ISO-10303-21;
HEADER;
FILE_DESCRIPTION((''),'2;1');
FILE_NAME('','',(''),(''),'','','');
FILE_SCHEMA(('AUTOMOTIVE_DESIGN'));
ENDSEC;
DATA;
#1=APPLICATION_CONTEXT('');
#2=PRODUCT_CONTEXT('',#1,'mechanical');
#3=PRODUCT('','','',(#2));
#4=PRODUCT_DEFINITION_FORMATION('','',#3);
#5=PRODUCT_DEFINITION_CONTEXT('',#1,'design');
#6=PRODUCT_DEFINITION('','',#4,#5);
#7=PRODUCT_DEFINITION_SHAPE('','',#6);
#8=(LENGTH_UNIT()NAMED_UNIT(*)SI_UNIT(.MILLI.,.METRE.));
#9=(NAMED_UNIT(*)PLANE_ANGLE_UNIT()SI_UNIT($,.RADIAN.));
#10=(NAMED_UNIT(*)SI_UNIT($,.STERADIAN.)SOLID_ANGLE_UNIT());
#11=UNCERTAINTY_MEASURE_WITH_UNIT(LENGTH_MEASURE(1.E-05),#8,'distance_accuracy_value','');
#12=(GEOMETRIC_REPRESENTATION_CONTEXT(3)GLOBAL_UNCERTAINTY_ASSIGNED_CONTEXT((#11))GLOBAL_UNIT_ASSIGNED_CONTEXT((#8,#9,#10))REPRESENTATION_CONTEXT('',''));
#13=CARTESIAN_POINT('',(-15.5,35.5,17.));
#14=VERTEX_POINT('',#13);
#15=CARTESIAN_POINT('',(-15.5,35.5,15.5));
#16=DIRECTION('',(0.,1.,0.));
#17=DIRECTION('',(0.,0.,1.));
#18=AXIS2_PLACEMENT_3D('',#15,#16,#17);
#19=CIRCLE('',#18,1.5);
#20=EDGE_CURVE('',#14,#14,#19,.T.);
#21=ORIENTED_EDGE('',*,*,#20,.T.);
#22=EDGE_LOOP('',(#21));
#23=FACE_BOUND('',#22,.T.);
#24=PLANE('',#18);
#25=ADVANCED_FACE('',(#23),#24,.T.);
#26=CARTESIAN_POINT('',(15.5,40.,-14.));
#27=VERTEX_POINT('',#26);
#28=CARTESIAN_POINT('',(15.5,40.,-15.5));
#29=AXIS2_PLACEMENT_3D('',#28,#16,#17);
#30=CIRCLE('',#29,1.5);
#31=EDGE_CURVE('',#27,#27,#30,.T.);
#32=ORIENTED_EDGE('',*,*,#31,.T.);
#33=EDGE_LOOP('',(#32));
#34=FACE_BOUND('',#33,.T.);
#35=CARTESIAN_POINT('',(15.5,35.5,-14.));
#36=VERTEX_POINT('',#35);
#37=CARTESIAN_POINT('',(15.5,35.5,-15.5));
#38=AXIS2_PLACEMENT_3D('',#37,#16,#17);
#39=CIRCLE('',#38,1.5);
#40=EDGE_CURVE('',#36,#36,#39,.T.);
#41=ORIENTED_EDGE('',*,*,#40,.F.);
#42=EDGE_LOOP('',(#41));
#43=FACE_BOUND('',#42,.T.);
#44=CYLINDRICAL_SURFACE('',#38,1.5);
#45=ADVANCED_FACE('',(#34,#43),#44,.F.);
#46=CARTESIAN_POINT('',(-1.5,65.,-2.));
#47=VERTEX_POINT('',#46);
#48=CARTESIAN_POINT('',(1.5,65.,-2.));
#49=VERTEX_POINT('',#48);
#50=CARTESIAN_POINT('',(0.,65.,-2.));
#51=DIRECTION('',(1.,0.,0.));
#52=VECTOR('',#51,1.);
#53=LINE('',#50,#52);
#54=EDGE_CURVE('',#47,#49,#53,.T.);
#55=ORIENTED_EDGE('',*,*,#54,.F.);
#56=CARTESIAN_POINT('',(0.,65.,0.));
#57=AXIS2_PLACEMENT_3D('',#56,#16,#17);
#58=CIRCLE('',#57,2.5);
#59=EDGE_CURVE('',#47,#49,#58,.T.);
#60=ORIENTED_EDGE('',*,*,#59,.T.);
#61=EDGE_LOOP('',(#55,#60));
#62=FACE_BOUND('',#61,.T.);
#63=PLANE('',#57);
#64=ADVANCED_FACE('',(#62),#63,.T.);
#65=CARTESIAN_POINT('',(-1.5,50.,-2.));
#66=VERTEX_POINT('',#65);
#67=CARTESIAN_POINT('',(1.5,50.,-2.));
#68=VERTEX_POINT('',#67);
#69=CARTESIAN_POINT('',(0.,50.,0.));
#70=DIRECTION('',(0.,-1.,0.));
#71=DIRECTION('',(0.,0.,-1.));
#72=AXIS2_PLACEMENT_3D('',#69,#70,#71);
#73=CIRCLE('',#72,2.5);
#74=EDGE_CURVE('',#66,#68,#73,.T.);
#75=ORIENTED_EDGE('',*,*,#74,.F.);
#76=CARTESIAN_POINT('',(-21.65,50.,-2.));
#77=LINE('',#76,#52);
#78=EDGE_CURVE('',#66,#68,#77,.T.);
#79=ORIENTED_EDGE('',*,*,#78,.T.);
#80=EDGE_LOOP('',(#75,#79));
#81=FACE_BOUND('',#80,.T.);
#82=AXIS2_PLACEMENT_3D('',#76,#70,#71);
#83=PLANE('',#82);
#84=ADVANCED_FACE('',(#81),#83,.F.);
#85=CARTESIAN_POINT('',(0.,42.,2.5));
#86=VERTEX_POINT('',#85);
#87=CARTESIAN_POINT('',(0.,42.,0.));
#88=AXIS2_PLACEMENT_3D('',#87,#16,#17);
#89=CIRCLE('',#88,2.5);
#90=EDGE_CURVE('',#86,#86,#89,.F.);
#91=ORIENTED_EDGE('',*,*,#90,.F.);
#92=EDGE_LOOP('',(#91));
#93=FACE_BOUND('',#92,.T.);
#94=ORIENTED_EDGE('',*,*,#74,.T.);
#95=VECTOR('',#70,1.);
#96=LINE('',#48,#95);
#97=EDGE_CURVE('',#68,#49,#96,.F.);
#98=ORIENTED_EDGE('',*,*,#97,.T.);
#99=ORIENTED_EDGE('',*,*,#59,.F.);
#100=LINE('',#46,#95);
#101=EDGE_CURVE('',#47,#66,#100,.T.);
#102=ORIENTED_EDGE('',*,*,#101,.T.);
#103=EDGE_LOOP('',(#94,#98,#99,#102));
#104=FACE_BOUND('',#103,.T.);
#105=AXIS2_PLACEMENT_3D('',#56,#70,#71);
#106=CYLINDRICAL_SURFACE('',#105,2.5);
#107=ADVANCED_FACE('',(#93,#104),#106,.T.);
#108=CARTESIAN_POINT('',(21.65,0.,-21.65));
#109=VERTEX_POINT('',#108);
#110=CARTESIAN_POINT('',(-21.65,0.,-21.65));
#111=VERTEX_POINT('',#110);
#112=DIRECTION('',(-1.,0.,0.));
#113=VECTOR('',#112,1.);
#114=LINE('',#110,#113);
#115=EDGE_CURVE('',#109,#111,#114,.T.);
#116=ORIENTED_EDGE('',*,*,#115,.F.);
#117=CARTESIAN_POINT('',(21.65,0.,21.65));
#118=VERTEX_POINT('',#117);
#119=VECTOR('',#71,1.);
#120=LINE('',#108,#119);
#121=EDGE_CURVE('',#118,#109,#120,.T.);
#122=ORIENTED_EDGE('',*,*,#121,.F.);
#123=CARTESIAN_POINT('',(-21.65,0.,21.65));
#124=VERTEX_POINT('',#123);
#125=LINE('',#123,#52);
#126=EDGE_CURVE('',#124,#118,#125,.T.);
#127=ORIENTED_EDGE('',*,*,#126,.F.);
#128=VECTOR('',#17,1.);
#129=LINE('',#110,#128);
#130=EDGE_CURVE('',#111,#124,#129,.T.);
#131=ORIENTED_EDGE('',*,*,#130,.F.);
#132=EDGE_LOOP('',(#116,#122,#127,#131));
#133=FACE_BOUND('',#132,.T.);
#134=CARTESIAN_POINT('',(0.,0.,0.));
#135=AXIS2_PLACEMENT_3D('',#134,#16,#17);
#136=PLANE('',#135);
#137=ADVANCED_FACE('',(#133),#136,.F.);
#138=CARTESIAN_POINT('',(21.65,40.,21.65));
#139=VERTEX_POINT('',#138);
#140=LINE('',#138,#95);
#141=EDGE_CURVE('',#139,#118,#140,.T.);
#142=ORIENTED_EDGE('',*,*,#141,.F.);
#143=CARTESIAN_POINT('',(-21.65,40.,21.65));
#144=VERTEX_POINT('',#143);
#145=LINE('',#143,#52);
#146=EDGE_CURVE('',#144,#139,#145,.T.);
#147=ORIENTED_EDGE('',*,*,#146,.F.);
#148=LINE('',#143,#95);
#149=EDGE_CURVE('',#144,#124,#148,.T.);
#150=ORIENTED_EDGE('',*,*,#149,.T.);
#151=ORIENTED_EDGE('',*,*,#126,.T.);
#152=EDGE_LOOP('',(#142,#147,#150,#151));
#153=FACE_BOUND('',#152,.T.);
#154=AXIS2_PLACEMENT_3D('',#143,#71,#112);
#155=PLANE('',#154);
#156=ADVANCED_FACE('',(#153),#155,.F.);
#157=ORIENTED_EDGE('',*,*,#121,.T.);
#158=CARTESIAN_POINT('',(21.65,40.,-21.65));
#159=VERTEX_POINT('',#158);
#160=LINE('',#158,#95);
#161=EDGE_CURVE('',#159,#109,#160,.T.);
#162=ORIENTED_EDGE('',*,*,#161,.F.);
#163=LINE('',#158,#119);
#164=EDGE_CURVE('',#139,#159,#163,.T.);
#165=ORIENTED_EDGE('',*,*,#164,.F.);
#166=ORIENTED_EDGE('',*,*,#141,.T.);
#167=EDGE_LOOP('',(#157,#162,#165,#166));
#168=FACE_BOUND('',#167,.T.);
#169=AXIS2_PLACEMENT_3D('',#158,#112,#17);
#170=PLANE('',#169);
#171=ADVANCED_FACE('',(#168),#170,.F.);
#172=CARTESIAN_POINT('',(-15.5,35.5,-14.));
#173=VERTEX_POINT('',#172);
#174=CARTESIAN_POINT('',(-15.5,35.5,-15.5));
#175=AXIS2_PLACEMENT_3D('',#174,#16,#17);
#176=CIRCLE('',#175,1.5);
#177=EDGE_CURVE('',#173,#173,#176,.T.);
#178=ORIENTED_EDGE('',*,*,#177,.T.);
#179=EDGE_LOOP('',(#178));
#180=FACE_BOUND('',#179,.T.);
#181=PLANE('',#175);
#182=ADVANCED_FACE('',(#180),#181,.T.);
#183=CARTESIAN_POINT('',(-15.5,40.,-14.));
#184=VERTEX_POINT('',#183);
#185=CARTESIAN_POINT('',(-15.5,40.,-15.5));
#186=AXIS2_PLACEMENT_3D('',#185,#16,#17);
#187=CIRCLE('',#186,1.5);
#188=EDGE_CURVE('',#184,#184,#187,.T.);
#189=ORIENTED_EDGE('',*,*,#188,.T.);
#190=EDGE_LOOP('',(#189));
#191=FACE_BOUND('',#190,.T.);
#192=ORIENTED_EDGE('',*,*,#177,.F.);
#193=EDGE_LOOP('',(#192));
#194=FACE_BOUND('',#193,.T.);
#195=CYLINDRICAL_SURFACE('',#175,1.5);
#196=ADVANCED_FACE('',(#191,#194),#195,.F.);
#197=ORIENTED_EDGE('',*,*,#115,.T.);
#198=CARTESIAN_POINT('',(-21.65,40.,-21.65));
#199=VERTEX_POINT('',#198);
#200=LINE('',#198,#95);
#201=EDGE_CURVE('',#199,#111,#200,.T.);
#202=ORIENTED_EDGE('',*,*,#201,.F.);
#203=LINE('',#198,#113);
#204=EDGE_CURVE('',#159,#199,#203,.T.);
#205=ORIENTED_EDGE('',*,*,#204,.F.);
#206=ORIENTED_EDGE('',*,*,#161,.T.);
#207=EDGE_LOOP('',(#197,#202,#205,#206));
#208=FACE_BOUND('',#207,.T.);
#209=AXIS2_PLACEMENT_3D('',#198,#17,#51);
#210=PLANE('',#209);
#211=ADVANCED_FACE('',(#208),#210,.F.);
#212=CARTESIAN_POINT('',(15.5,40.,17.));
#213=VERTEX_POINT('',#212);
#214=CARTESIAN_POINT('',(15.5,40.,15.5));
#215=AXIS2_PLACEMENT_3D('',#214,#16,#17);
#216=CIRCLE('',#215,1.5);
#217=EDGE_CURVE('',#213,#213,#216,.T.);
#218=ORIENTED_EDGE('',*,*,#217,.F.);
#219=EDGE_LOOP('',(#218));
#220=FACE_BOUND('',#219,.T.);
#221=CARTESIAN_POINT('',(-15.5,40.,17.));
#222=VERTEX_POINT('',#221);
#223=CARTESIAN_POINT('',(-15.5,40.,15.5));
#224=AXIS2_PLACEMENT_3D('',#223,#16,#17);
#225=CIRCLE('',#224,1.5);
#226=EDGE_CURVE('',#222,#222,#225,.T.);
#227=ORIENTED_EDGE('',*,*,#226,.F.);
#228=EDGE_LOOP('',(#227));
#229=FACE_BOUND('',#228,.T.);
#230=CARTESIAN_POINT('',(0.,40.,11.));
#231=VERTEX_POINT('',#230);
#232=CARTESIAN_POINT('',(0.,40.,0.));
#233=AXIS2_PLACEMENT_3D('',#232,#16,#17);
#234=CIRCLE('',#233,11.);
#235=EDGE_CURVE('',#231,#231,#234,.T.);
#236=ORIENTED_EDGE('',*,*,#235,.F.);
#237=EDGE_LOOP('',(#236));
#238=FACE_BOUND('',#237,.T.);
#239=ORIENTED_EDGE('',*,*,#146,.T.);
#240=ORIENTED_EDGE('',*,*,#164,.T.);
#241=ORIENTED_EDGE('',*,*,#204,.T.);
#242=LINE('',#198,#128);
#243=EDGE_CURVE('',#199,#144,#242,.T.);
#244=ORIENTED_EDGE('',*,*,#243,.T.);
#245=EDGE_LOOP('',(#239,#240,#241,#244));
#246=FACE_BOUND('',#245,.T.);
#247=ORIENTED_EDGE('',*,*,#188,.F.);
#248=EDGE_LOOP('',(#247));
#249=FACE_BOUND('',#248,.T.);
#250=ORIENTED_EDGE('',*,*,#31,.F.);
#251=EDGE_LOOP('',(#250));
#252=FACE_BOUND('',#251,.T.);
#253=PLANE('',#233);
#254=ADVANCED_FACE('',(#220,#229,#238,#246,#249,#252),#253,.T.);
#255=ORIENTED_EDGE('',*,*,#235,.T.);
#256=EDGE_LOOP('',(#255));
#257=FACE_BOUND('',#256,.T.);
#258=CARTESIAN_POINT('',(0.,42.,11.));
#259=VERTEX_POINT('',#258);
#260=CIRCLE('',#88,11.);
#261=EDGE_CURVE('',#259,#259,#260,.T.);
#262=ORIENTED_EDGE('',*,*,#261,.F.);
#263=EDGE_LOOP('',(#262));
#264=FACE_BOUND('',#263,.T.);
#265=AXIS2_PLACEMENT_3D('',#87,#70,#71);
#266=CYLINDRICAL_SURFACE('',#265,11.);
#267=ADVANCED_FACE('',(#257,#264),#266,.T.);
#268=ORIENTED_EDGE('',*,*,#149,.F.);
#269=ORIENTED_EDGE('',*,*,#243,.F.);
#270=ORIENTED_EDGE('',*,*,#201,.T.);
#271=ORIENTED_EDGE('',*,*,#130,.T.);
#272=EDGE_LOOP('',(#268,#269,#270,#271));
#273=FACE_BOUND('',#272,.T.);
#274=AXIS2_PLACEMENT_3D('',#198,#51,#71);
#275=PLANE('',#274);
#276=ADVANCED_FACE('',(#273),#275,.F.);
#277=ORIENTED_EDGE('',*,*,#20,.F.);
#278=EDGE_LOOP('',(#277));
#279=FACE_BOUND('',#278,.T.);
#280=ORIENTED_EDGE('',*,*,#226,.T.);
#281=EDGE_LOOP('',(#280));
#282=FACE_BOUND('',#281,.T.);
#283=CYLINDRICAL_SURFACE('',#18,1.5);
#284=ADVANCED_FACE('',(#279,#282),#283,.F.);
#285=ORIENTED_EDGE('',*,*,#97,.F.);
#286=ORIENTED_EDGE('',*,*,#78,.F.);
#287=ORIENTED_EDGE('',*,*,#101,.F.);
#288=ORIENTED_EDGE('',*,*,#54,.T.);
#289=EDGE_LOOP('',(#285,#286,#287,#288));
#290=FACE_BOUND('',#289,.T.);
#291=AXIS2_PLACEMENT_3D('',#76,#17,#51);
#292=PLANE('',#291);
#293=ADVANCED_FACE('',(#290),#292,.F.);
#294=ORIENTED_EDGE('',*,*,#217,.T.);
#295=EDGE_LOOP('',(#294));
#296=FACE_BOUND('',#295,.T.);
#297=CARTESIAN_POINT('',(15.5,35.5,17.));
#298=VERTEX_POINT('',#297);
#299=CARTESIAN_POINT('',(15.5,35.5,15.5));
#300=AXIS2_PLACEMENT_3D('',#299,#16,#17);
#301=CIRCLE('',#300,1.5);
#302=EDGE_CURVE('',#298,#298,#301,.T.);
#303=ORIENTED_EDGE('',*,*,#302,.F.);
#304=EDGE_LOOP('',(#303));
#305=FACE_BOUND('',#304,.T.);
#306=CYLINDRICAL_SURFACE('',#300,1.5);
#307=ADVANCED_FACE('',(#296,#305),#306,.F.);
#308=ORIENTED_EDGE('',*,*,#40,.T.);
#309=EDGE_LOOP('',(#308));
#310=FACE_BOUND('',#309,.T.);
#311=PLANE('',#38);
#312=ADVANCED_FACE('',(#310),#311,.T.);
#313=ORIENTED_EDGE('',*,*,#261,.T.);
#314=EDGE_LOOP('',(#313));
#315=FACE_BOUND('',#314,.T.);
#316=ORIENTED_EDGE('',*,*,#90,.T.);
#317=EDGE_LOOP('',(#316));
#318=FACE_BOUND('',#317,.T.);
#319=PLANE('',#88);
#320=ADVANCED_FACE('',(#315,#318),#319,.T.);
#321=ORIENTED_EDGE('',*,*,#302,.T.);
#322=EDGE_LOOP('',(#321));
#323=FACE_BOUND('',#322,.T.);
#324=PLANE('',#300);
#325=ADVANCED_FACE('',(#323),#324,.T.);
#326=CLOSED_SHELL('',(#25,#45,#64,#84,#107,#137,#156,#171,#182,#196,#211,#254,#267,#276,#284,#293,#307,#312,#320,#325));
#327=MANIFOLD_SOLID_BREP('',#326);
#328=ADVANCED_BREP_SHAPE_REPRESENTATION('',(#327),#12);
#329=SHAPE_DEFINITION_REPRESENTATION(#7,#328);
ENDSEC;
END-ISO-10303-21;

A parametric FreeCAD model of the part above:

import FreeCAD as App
import Part
import Sketcher
from FreeCAD import Vector
Q = App.Units.Quantity

doc = App.newDocument("Part")
body = doc.addObject("PartDesign::Body", "Body")

# Sketch on XZ plane
sketch1 = doc.addObject("Sketcher::SketchObject", "Sketch")
body.addObject(sketch1)
sketch1.AttachmentSupport = (doc.XZ_Plane, [""])
sketch1.MapMode = "FlatFace"
sketch1.addGeometry(Part.LineSegment(Vector(-22, -22, 0), Vector(-22, 22, 0)), False)
sketch1.addGeometry(Part.LineSegment(Vector(-22, 22, 0), Vector(22, 22, 0)), False)
sketch1.addGeometry(Part.LineSegment(Vector(22, 22, 0), Vector(22, -22, 0)), False)
sketch1.addGeometry(Part.LineSegment(Vector(22, -22, 0), Vector(-22, -22, 0)), False)
sketch1.addConstraint(Sketcher.Constraint("Coincident", 0, 2, 1, 1))
sketch1.addConstraint(Sketcher.Constraint("Coincident", 1, 2, 2, 1))
sketch1.addConstraint(Sketcher.Constraint("Coincident", 2, 2, 3, 1))
sketch1.addConstraint(Sketcher.Constraint("Coincident", 3, 2, 0, 1))
sketch1.addConstraint(Sketcher.Constraint("Vertical", 0))
sketch1.addConstraint(Sketcher.Constraint("Horizontal", 1))
sketch1.addConstraint(Sketcher.Constraint("Vertical", 2))
sketch1.addConstraint(Sketcher.Constraint("Horizontal", 3))
sketch1.addConstraint(Sketcher.Constraint("Symmetric", 0, 2, 2, 2, -1, 1))
sketch1.addConstraint(Sketcher.Constraint("Equal", 3, 0))
sketch1.addConstraint(Sketcher.Constraint("DistanceX", 1, 1, 1, 2, Q("43.3 mm")))
pad1 = doc.addObject("PartDesign::Pad", "Pad")
body.addObject(pad1)
pad1.Profile = sketch1
pad1.Length = 40
pad1.Reversed = True

# Sketch on XZ plane
sketch2 = doc.addObject("Sketcher::SketchObject", "Sketch001")
body.addObject(sketch2)
sketch2.AttachmentSupport = (doc.XZ_Plane, [""])
sketch2.MapMode = "FlatFace"
sketch2.AttachmentOffset = App.Placement(Vector(0, 0, -40), App.Rotation())
sketch2.addGeometry(Part.Circle(Vector(0, 0, 0), Vector(0, 0, 1), 11), False)
sketch2.addConstraint(Sketcher.Constraint("Coincident", 0, 3, -1, 1))
sketch2.addConstraint(Sketcher.Constraint("Diameter", 0, Q("22 mm")))
pad2 = doc.addObject("PartDesign::Pad", "Pad001")
body.addObject(pad2)
pad2.Profile = sketch2
pad2.Length = 2
pad2.Reversed = True

# Sketch on XZ plane
sketch3 = doc.addObject("Sketcher::SketchObject", "Sketch002")
body.addObject(sketch3)
sketch3.AttachmentSupport = (doc.XZ_Plane, [""])
sketch3.MapMode = "FlatFace"
sketch3.AttachmentOffset = App.Placement(Vector(0, 0, -40), App.Rotation())
sketch3.addGeometry(Part.Circle(Vector(0, 0, 0), Vector(0, 0, 1), 2.5), False)
sketch3.addConstraint(Sketcher.Constraint("Coincident", 0, 3, -1, 1))
sketch3.addConstraint(Sketcher.Constraint("Diameter", 0, Q("5 mm")))
pad3 = doc.addObject("PartDesign::Pad", "Pad002")
body.addObject(pad3)
pad3.Profile = sketch3
pad3.Length = 25
pad3.Reversed = True

# Sketch on YZ plane
sketch4 = doc.addObject("Sketcher::SketchObject", "Sketch003")
body.addObject(sketch4)
sketch4.AttachmentSupport = (doc.YZ_Plane, [""])
sketch4.MapMode = "FlatFace"
sketch4.addGeometry(Part.LineSegment(Vector(65, -2, 0), Vector(50, -2, 0)), False)
sketch4.addGeometry(Part.LineSegment(Vector(50, -2, 0), Vector(50, -2.5, 0)), False)
sketch4.addGeometry(Part.LineSegment(Vector(50, -2.5, 0), Vector(65, -2.5, 0)), False)
sketch4.addGeometry(Part.LineSegment(Vector(65, -2.5, 0), Vector(65, -2, 0)), False)
sketch4.addConstraint(Sketcher.Constraint("Coincident", 0, 2, 1, 1))
sketch4.addConstraint(Sketcher.Constraint("Coincident", 1, 2, 2, 1))
sketch4.addConstraint(Sketcher.Constraint("Coincident", 2, 2, 3, 1))
sketch4.addConstraint(Sketcher.Constraint("Coincident", 3, 2, 0, 1))
sketch4.addConstraint(Sketcher.Constraint("Horizontal", 0))
sketch4.addConstraint(Sketcher.Constraint("Vertical", 1))
sketch4.addConstraint(Sketcher.Constraint("Horizontal", 2))
sketch4.addConstraint(Sketcher.Constraint("Vertical", 3))
sketch4.addConstraint(Sketcher.Constraint("DistanceX", 0, 2, 0, 1, Q("15 mm")))
sketch4.addConstraint(Sketcher.Constraint("DistanceY", 1, 2, 1, 1, Q("0.5 mm")))
sketch4.addConstraint(Sketcher.Constraint("DistanceX", -1, 1, 0, 2, Q("50 mm")))
sketch4.addConstraint(Sketcher.Constraint("DistanceY", 0, 2, -1, 1, Q("2 mm")))
pocket1 = doc.addObject("PartDesign::Pocket", "Pocket")
body.addObject(pocket1)
pocket1.Profile = sketch4
pocket1.Type = "ThroughAll"
pocket1.Midplane = True

# Sketch on XZ plane
sketch5 = doc.addObject("Sketcher::SketchObject", "Sketch004")
body.addObject(sketch5)
sketch5.AttachmentSupport = (doc.XZ_Plane, [""])
sketch5.MapMode = "FlatFace"
sketch5.AttachmentOffset = App.Placement(Vector(0, 0, -40), App.Rotation())
sketch5.addGeometry(Part.Circle(Vector(15.5, -15.5, 0), Vector(0, 0, 1), 1.5), False)
sketch5.addGeometry(Part.Circle(Vector(15.5, 15.5, 0), Vector(0, 0, 1), 1.5), False)
sketch5.addGeometry(Part.Circle(Vector(-15.5, 15.5, 0), Vector(0, 0, 1), 1.5), False)
sketch5.addGeometry(Part.Circle(Vector(-15.5, -15.5, 0), Vector(0, 0, 1), 1.5), False)
sketch5.addConstraint(Sketcher.Constraint("Equal", 0, 1))
sketch5.addConstraint(Sketcher.Constraint("Equal", 1, 2))
sketch5.addConstraint(Sketcher.Constraint("Equal", 2, 3))
sketch5.addConstraint(Sketcher.Constraint("Symmetric", 0, 3, 2, 3, -1, 1))
sketch5.addConstraint(Sketcher.Constraint("Symmetric", 1, 3, 3, 3, -1, 1))
sketch5.addConstraint(Sketcher.Constraint("Symmetric", 1, 3, 2, 3, -2))
sketch5.addConstraint(Sketcher.Constraint("Diameter", 0, Q("3 mm")))
sketch5.addConstraint(Sketcher.Constraint("DistanceY", 0, 3, 1, 3, Q("31 mm")))
sketch5.addConstraint(Sketcher.Constraint("DistanceX", 2, 3, 1, 3, Q("31 mm")))
pocket2 = doc.addObject("PartDesign::Pocket", "Pocket001")
body.addObject(pocket2)
pocket2.Profile = sketch5
pocket2.Length = 4.5
pocket2.Reversed = True

doc.recompute()
